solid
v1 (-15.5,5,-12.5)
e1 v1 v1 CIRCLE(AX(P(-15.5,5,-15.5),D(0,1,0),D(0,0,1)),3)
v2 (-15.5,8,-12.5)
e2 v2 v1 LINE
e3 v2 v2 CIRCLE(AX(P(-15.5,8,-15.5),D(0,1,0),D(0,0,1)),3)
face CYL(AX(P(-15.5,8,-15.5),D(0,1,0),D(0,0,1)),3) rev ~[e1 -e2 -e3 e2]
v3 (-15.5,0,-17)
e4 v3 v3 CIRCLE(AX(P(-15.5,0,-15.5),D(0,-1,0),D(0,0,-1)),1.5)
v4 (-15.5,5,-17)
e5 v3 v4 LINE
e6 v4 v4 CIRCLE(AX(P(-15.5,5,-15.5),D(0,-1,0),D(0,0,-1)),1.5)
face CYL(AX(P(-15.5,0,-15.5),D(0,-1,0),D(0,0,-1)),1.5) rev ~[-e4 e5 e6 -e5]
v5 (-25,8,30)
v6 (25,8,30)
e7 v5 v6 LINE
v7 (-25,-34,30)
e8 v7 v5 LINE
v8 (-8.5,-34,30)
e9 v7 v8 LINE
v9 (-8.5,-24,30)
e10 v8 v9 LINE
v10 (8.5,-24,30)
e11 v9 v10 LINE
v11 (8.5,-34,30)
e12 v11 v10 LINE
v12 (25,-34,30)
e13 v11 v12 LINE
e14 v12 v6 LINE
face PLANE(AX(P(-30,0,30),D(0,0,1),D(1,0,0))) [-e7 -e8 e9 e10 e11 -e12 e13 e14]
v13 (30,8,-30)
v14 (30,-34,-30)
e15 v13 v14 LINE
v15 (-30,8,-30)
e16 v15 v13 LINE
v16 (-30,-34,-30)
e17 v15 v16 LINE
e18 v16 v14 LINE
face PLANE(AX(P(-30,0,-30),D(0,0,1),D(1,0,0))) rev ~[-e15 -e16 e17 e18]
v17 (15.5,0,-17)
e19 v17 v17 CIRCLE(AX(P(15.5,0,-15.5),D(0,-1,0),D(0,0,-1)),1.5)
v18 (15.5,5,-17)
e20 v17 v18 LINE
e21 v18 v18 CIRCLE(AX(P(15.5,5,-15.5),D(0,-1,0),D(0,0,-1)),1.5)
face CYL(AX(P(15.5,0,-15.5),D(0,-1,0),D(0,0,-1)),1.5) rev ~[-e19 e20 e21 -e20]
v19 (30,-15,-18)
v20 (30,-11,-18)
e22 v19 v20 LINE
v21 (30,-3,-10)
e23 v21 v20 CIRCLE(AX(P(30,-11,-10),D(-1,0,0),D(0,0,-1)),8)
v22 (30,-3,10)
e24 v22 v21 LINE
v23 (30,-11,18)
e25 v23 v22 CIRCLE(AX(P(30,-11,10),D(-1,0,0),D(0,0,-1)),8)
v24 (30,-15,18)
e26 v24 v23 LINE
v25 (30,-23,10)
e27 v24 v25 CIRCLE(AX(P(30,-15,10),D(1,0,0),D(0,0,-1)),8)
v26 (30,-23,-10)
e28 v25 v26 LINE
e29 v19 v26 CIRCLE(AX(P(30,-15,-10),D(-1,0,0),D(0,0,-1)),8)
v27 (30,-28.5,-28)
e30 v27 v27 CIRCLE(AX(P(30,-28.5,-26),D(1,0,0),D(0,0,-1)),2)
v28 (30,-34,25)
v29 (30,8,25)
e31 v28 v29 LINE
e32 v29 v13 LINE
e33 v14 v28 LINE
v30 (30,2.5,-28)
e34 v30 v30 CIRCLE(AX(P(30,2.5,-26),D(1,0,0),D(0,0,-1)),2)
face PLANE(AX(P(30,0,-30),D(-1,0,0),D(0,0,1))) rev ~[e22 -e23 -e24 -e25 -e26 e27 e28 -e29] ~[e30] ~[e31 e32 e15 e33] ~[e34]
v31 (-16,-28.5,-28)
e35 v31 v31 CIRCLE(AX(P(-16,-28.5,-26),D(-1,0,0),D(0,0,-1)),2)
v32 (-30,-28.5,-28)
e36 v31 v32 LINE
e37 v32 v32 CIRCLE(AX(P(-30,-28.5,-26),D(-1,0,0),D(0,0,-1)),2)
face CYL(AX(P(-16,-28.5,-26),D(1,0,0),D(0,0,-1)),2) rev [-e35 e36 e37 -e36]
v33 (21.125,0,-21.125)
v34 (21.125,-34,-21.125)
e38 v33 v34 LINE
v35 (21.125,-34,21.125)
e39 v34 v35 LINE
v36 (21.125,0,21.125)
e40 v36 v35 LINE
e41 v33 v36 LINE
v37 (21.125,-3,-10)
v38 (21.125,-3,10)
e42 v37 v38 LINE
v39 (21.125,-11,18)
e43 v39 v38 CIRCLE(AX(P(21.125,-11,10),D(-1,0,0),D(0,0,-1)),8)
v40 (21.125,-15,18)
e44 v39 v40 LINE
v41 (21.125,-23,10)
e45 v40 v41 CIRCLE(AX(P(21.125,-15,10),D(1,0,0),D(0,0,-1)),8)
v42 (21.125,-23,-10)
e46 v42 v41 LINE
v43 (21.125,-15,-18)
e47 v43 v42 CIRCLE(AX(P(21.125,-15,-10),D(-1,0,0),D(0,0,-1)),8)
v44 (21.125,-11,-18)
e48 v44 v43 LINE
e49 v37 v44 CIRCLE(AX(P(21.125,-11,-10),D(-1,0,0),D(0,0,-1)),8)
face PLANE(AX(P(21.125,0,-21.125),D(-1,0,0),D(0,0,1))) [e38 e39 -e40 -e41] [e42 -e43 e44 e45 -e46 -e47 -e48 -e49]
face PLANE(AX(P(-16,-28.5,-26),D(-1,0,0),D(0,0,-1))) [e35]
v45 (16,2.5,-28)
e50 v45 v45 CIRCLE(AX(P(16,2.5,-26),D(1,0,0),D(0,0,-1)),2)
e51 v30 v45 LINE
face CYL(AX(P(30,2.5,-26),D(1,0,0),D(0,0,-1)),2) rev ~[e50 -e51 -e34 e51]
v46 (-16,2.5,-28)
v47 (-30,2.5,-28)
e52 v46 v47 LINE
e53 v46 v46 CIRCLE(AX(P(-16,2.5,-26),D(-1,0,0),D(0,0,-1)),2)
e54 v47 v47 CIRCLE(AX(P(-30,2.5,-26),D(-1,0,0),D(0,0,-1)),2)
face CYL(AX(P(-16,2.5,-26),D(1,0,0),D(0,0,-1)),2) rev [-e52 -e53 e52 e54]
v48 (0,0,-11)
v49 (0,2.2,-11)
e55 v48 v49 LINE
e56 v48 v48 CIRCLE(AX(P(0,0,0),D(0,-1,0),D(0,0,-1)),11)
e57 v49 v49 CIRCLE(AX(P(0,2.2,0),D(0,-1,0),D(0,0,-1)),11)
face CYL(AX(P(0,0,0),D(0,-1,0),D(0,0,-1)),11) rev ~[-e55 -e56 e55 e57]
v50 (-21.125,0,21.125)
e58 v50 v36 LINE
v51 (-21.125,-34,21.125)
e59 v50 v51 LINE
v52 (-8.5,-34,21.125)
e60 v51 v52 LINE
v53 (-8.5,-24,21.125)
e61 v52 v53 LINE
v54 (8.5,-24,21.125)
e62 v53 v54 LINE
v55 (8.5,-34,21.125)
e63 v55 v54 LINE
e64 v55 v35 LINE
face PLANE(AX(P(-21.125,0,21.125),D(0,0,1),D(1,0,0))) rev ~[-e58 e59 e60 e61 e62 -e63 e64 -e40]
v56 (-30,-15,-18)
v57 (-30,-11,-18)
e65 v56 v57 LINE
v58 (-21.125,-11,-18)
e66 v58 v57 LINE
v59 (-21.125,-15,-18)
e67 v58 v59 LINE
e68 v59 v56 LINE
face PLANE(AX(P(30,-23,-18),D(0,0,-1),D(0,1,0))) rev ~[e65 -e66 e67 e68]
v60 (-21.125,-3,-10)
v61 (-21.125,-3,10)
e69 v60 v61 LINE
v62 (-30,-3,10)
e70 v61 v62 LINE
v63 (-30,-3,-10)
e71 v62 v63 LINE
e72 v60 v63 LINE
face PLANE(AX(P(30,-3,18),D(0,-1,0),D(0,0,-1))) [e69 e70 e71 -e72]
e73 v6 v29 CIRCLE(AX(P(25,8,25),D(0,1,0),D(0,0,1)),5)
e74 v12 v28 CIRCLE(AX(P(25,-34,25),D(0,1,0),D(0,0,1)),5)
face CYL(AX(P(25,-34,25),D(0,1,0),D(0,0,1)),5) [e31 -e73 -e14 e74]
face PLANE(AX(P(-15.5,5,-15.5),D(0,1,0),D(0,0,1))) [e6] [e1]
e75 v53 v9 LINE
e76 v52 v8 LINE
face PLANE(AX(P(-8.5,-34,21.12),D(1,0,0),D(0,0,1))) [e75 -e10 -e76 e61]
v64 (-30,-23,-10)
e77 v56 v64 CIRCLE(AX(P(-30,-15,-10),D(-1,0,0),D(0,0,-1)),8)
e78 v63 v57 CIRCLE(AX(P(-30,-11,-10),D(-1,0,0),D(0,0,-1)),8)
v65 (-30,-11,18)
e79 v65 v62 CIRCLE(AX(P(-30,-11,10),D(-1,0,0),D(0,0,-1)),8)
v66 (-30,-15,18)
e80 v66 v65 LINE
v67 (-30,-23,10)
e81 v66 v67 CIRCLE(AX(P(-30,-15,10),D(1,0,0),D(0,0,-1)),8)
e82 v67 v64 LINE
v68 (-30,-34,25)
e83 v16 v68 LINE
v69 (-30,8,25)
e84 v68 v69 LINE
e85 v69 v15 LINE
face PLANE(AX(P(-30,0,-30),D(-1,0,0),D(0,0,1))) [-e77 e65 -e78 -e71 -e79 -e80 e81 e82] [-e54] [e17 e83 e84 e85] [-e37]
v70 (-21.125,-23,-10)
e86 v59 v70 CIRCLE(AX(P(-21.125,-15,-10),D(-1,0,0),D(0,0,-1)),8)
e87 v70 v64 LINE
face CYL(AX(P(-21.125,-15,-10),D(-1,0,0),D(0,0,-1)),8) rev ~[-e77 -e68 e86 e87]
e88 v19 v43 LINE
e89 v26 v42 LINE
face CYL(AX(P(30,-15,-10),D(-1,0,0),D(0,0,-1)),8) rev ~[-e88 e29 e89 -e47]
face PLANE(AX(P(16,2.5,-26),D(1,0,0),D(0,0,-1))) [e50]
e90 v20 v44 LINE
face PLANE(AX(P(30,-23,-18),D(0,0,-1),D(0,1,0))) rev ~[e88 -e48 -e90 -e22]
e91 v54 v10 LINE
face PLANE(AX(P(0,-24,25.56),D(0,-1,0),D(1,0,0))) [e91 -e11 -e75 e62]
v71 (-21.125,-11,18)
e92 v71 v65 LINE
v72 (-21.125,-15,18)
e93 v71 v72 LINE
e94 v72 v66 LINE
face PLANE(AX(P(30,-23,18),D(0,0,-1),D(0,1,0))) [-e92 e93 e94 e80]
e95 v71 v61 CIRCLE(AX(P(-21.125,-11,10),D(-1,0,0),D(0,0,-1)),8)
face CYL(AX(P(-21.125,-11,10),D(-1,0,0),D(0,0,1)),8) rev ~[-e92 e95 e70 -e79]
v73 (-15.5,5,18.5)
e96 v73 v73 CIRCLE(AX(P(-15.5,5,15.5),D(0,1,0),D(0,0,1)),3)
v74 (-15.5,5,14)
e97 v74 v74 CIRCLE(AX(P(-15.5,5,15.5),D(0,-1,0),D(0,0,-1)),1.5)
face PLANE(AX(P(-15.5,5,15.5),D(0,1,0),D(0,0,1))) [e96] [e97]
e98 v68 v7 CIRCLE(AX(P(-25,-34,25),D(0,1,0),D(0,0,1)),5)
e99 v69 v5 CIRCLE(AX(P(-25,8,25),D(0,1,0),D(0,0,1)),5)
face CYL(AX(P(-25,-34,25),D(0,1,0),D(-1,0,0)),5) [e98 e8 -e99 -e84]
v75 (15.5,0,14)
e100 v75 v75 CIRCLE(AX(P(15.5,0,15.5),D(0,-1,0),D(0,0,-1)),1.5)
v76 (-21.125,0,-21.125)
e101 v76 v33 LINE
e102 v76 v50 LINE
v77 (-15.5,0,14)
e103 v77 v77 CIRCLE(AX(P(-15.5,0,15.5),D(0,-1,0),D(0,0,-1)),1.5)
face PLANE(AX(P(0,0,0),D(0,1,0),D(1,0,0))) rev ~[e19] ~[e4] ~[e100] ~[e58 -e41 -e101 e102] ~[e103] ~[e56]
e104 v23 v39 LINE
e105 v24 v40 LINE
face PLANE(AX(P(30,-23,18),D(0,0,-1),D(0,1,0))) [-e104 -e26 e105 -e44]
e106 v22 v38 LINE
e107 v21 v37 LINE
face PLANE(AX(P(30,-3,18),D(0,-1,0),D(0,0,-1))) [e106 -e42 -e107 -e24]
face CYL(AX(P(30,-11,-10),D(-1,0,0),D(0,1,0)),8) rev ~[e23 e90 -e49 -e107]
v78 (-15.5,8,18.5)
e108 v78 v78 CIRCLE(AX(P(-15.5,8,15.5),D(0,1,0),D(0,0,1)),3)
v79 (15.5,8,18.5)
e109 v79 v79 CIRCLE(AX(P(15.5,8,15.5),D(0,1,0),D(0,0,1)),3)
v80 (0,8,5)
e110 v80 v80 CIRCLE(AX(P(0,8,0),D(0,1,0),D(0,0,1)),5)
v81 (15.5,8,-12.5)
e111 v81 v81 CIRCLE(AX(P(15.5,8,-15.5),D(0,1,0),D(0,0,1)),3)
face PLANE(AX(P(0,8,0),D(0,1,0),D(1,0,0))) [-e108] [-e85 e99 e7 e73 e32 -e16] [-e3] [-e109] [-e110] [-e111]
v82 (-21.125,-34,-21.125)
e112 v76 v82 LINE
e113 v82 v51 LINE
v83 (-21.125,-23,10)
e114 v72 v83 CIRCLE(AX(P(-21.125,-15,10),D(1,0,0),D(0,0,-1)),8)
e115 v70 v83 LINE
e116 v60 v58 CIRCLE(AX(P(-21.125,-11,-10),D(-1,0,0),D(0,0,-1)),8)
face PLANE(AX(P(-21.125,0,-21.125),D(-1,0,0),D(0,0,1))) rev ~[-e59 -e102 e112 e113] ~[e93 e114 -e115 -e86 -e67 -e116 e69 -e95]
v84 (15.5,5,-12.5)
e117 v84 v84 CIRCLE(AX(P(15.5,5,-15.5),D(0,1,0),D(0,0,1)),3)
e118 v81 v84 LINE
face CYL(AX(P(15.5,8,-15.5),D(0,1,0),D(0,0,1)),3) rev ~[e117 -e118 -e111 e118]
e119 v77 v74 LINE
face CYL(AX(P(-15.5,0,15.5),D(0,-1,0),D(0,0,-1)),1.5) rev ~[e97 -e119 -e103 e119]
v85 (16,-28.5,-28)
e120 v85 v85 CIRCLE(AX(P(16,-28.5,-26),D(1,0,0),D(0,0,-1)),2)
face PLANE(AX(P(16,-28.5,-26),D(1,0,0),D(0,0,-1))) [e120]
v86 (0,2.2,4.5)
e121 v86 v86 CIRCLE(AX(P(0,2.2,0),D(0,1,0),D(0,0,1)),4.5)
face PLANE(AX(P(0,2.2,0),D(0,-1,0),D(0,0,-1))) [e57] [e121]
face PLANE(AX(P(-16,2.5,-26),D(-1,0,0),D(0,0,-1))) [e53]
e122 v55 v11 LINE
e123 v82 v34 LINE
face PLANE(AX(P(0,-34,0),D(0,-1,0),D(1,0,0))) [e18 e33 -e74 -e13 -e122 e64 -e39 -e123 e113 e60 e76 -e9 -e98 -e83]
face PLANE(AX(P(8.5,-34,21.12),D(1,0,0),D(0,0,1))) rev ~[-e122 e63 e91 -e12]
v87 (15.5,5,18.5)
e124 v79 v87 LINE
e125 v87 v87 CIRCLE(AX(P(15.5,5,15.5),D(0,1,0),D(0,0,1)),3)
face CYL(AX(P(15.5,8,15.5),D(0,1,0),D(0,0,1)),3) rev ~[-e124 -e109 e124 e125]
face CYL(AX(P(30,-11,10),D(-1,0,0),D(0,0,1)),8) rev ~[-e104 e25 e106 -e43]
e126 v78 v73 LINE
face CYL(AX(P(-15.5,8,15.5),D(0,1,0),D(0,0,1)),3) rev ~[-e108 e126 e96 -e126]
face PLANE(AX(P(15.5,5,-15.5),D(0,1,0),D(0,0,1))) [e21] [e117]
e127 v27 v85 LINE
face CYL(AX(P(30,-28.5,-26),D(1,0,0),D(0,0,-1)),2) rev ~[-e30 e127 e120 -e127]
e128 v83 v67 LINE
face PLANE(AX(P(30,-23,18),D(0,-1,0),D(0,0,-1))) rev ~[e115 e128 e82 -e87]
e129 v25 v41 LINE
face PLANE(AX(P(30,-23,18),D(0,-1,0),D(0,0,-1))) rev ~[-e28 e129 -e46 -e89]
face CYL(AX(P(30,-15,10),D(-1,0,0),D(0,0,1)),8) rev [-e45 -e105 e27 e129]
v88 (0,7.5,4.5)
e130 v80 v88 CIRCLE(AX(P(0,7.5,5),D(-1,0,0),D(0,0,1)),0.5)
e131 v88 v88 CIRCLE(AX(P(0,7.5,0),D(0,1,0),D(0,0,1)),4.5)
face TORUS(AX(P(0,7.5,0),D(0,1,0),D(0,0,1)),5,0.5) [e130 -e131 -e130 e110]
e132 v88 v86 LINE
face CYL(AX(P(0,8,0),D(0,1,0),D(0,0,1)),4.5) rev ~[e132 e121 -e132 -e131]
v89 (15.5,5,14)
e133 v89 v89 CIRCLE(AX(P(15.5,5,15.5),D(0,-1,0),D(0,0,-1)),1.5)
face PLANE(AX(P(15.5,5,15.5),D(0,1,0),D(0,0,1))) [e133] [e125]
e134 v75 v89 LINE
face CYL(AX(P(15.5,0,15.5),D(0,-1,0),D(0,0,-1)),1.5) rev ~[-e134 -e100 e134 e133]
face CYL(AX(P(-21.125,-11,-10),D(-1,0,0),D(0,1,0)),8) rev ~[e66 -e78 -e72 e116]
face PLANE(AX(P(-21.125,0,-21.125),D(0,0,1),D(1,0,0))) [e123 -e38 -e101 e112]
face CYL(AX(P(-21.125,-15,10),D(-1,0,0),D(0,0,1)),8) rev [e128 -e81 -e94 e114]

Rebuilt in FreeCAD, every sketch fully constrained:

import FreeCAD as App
import Part
import Sketcher
from FreeCAD import Vector


def edges_at(feature, points):
    """Names of the edges that pass closest to the given points."""
    edges = feature.Shape.Edges
    near = lambda p: min(range(len(edges)), key=lambda i: edges[i].distToShape(Part.Vertex(*p))[0])
    return sorted({f"Edge{near(p) + 1}" for p in points})


def add_polygon(sketch, points):
    """Adds a closed chain of lines whose ends are joined by coincident constraints."""
    first, n = sketch.GeometryCount, len(points)
    for a, b in zip(points, points[1:] + points[:1]):
        sketch.addGeometry(Part.LineSegment(App.Vector(*a, 0), App.Vector(*b, 0)), False)
    for i in range(n):
        sketch.addConstraint(Sketcher.Constraint("Coincident", first + i, 2, first + (i + 1) % n, 1))

doc = App.newDocument("Part")
body = doc.addObject("PartDesign::Body", "Body")

sketch1 = body.newObject("Sketcher::SketchObject", "Sketch")
sketch1.AttachmentSupport = (doc.getObject("XZ_Plane"), [""])
sketch1.MapMode = "FlatFace"
add_polygon(sketch1, [(-30, -30), (-30, 30), (30, 30), (30, -30)])
sketch1.addConstraint(Sketcher.Constraint("Vertical", 0))
sketch1.addConstraint(Sketcher.Constraint("Horizontal", 1))
sketch1.addConstraint(Sketcher.Constraint("Vertical", 2))
sketch1.addConstraint(Sketcher.Constraint("Horizontal", 3))
sketch1.addConstraint(Sketcher.Constraint("Symmetric", 0, 2, 2, 2, -1, 1))
sketch1.addConstraint(Sketcher.Constraint("Equal", 3, 0))
sketch1.addConstraint(Sketcher.Constraint("DistanceX", 1, 1, 1, 2, 60.0))
pad1 = body.newObject("PartDesign::Pad", "Pad")
pad1.Profile = sketch1
pad1.Length = 8
pad1.Reversed = True

sketch2 = body.newObject("Sketcher::SketchObject", "Sketch001")
sketch2.AttachmentSupport = (doc.getObject("XZ_Plane"), [""])
sketch2.MapMode = "FlatFace"
sketch2.AttachmentOffset = App.Placement(Vector(0, 0, -8), App.Rotation())
sketch2.addGeometry(Part.Circle(Vector(0, 0, 0), Vector(0, 0, 1), 4.5), False)
sketch2.addConstraint(Sketcher.Constraint("Coincident", 0, 3, -1, 1))
sketch2.addConstraint(Sketcher.Constraint("Diameter", 0, 9.0))
pocket1 = body.newObject("PartDesign::Pocket", "Pocket")
pocket1.Profile = sketch2
pocket1.Length = 8
pocket1.Reversed = True

sketch3 = body.newObject("Sketcher::SketchObject", "Sketch002")
sketch3.AttachmentSupport = (doc.getObject("XZ_Plane"), [""])
sketch3.MapMode = "FlatFace"
sketch3.addGeometry(Part.Circle(Vector(0, 0, 0), Vector(0, 0, 1), 11), False)
sketch3.addConstraint(Sketcher.Constraint("Coincident", 0, 3, -1, 1))
sketch3.addConstraint(Sketcher.Constraint("Diameter", 0, 22.0))
pocket2 = body.newObject("PartDesign::Pocket", "Pocket001")
pocket2.Profile = sketch3
pocket2.Length = 2.2

sketch4 = body.newObject("Sketcher::SketchObject", "Sketch003")
sketch4.AttachmentSupport = (doc.getObject("XZ_Plane"), [""])
sketch4.MapMode = "FlatFace"
sketch4.addGeometry(Part.Circle(Vector(-15.5, 15.5, 0), Vector(0, 0, 1), 1.5), False)
sketch4.addGeometry(Part.Circle(Vector(-15.5, -15.5, 0), Vector(0, 0, 1), 1.5), False)
sketch4.addGeometry(Part.Circle(Vector(15.5, -15.5, 0), Vector(0, 0, 1), 1.5), False)
sketch4.addGeometry(Part.Circle(Vector(15.5, 15.5, 0), Vector(0, 0, 1), 1.5), False)
sketch4.addConstraint(Sketcher.Constraint("Equal", 0, 1))
sketch4.addConstraint(Sketcher.Constraint("Equal", 1, 2))
sketch4.addConstraint(Sketcher.Constraint("Equal", 2, 3))
sketch4.addConstraint(Sketcher.Constraint("Symmetric", 0, 3, 2, 3, -1, 1))
sketch4.addConstraint(Sketcher.Constraint("Symmetric", 1, 3, 3, 3, -1, 1))
sketch4.addConstraint(Sketcher.Constraint("Symmetric", 1, 3, 2, 3, -2))
sketch4.addConstraint(Sketcher.Constraint("Diameter", 0, 3.0))
sketch4.addConstraint(Sketcher.Constraint("DistanceY", 1, 3, 0, 3, 31.0))
sketch4.addConstraint(Sketcher.Constraint("DistanceX", 1, 3, 2, 3, 31.0))
pocket3 = body.newObject("PartDesign::Pocket", "Pocket002")
pocket3.Profile = sketch4
pocket3.Length = 11.2

sketch5 = body.newObject("Sketcher::SketchObject", "Sketch004")
sketch5.AttachmentSupport = (doc.getObject("XZ_Plane"), [""])
sketch5.MapMode = "FlatFace"
sketch5.AttachmentOffset = App.Placement(Vector(0, 0, -8), App.Rotation())
sketch5.addGeometry(Part.Circle(Vector(-15.5, -15.5, 0), Vector(0, 0, 1), 3), False)
sketch5.addGeometry(Part.Circle(Vector(15.5, -15.5, 0), Vector(0, 0, 1), 3), False)
sketch5.addGeometry(Part.Circle(Vector(-15.5, 15.5, 0), Vector(0, 0, 1), 3), False)
sketch5.addGeometry(Part.Circle(Vector(15.5, 15.5, 0), Vector(0, 0, 1), 3), False)
sketch5.addConstraint(Sketcher.Constraint("Equal", 0, 1))
sketch5.addConstraint(Sketcher.Constraint("Equal", 1, 2))
sketch5.addConstraint(Sketcher.Constraint("Equal", 2, 3))
sketch5.addConstraint(Sketcher.Constraint("Symmetric", 1, 3, 2, 3, -1, 1))
sketch5.addConstraint(Sketcher.Constraint("Symmetric", 0, 3, 3, 3, -1, 1))
sketch5.addConstraint(Sketcher.Constraint("Symmetric", 0, 3, 1, 3, -2))
sketch5.addConstraint(Sketcher.Constraint("Diameter", 0, 6.0))
sketch5.addConstraint(Sketcher.Constraint("DistanceX", 0, 3, 1, 3, 31.0))
sketch5.addConstraint(Sketcher.Constraint("DistanceY", 0, 3, 2, 3, 31.0))
pocket4 = body.newObject("PartDesign::Pocket", "Pocket003")
pocket4.Profile = sketch5
pocket4.Length = 3
pocket4.Reversed = True

sketch6 = body.newObject("Sketcher::SketchObject", "Sketch005")
sketch6.AttachmentSupport = (doc.getObject("XZ_Plane"), [""])
sketch6.MapMode = "FlatFace"
add_polygon(sketch6, [(-30, 30), (-30, -30), (30, -30), (30, 30)])
add_polygon(sketch6, [(21, -21), (-21, -21), (-21, 21), (21, 21)])
sketch6.addConstraint(Sketcher.Constraint("Vertical", 0))
sketch6.addConstraint(Sketcher.Constraint("Horizontal", 1))
sketch6.addConstraint(Sketcher.Constraint("Vertical", 2))
sketch6.addConstraint(Sketcher.Constraint("Horizontal", 3))
sketch6.addConstraint(Sketcher.Constraint("Horizontal", 4))
sketch6.addConstraint(Sketcher.Constraint("Vertical", 5))
sketch6.addConstraint(Sketcher.Constraint("Horizontal", 6))
sketch6.addConstraint(Sketcher.Constraint("Vertical", 7))
sketch6.addConstraint(Sketcher.Constraint("Symmetric", 0, 2, 2, 2, -1, 1))
sketch6.addConstraint(Sketcher.Constraint("Symmetric", 4, 2, 6, 2, -1, 1))
sketch6.addConstraint(Sketcher.Constraint("Equal", 3, 0))
sketch6.addConstraint(Sketcher.Constraint("Equal", 6, 5))
sketch6.addConstraint(Sketcher.Constraint("DistanceX", 1, 1, 1, 2, 60.0))
sketch6.addConstraint(Sketcher.Constraint("DistanceX", 4, 2, 4, 1, 42.25))
pad2 = body.newObject("PartDesign::Pad", "Pad001")
pad2.Profile = sketch6
pad2.Length = 34

sketch7 = body.newObject("Sketcher::SketchObject", "Sketch006")
sketch7.AttachmentSupport = (doc.getObject("XZ_Plane"), [""])
sketch7.MapMode = "FlatFace"
sketch7.AttachmentOffset = App.Placement(Vector(0, 0, 34), App.Rotation())
add_polygon(sketch7, [(-8, 30), (-8, 21), (8, 21), (8, 30)])
sketch7.addConstraint(Sketcher.Constraint("Vertical", 0))
sketch7.addConstraint(Sketcher.Constraint("Horizontal", 1))
sketch7.addConstraint(Sketcher.Constraint("Vertical", 2))
sketch7.addConstraint(Sketcher.Constraint("Horizontal", 3))
sketch7.addConstraint(Sketcher.Constraint("DistanceX", 1, 1, 1, 2, 17.0))
sketch7.addConstraint(Sketcher.Constraint("DistanceY", -1, 1, 2, 2, 30.0))
sketch7.addConstraint(Sketcher.Constraint("DistanceY", 0, 2, 0, 1, 8.88))
sketch7.addConstraint(Sketcher.Constraint("DistanceX", 0, 2, -1, 1, 8.5))
pocket5 = body.newObject("PartDesign::Pocket", "Pocket004")
pocket5.Profile = sketch7
pocket5.Length = 10

sketch8 = body.newObject("Sketcher::SketchObject", "Sketch007")
sketch8.AttachmentSupport = (doc.getObject("YZ_Plane"), [""])
sketch8.MapMode = "FlatFace"
sketch8.AttachmentOffset = App.Placement(Vector(0, 0, 30), App.Rotation())
add_polygon(sketch8, [(-3, 18), (-23, 18), (-23, -18), (-3, -18)])
sketch8.addConstraint(Sketcher.Constraint("Horizontal", 0))
sketch8.addConstraint(Sketcher.Constraint("Vertical", 1))
sketch8.addConstraint(Sketcher.Constraint("Horizontal", 2))
sketch8.addConstraint(Sketcher.Constraint("Vertical", 3))
sketch8.addConstraint(Sketcher.Constraint("DistanceX", 0, 2, 0, 1, 20.0))
sketch8.addConstraint(Sketcher.Constraint("DistanceY", 1, 2, 1, 1, 36.0))
sketch8.addConstraint(Sketcher.Constraint("DistanceX", 0, 2, -1, 1, 23.0))
sketch8.addConstraint(Sketcher.Constraint("DistanceY", -1, 1, 0, 2, 18.0))
pocket6 = body.newObject("PartDesign::Pocket", "Pocket005")
pocket6.Profile = sketch8
pocket6.Length = 60
doc.recompute()

fillet = body.newObject("PartDesign::Fillet", "Fillet")
fillet.Base = (pocket6, edges_at(pocket6, [(0, 8, -4.5)]))
fillet.Radius = 0.5
doc.recompute()

fillet2 = body.newObject("PartDesign::Fillet", "Fillet001")
fillet2.Base = (fillet, edges_at(fillet, [
    (-25.562, -23, 18),
    (-25.562, -3, 18),
    (-25.562, -3, -18),
    (-25.562, -23, -18),
    (25.562, -23, 18),
    (25.562, -3, 18),
    (25.562, -3, -18),
    (25.562, -23, -18),
]))
fillet2.Radius = 8
doc.recompute()

fillet3 = body.newObject("PartDesign::Fillet", "Fillet002")
fillet3.Base = (fillet2, edges_at(fillet2, [(30, -13, 30), (-30, -13, 30)]))
fillet3.Radius = 5

sketch9 = body.newObject("Sketcher::SketchObject", "Sketch008")
sketch9.AttachmentSupport = (doc.getObject("YZ_Plane"), [""])
sketch9.MapMode = "FlatFace"
sketch9.AttachmentOffset = App.Placement(Vector(0, 0, 30), App.Rotation())
sketch9.addGeometry(Part.Circle(Vector(-28.5, -26, 0), Vector(0, 0, 1), 2), False)
sketch9.addGeometry(Part.Circle(Vector(2.5, -26, 0), Vector(0, 0, 1), 2), False)
sketch9.addConstraint(Sketcher.Constraint("Equal", 0, 1))
sketch9.addConstraint(Sketcher.Constraint("Horizontal", 0, 3, 1, 3))
sketch9.addConstraint(Sketcher.Constraint("Diameter", 0, 4.0))
sketch9.addConstraint(Sketcher.Constraint("DistanceY", 0, 3, -1, 1, 26.0))
sketch9.addConstraint(Sketcher.Constraint("DistanceX", 0, 3, 1, 3, 31.0))
sketch9.addConstraint(Sketcher.Constraint("DistanceX", 0, 3, -1, 1, 28.5))
pocket7 = body.newObject("PartDesign::Pocket", "Pocket006")
pocket7.Profile = sketch9
pocket7.Length = 14

sketch10 = body.newObject("Sketcher::SketchObject", "Sketch009")
sketch10.AttachmentSupport = (doc.getObject("YZ_Plane"), [""])
sketch10.MapMode = "FlatFace"
sketch10.AttachmentOffset = App.Placement(Vector(0, 0, -16), App.Rotation())
sketch10.addGeometry(Part.Circle(Vector(2.5, -26, 0), Vector(0, 0, 1), 2), False)
sketch10.addGeometry(Part.Circle(Vector(-28.5, -26, 0), Vector(0, 0, 1), 2), False)
sketch10.addConstraint(Sketcher.Constraint("Equal", 0, 1))
sketch10.addConstraint(Sketcher.Constraint("Horizontal", 0, 3, 1, 3))
sketch10.addConstraint(Sketcher.Constraint("Diameter", 0, 4.0))
sketch10.addConstraint(Sketcher.Constraint("DistanceY", 0, 3, -1, 1, 26.0))
sketch10.addConstraint(Sketcher.Constraint("DistanceX", 1, 3, 0, 3, 31.0))
sketch10.addConstraint(Sketcher.Constraint("DistanceX", -1, 1, 0, 3, 2.5))
pocket8 = body.newObject("PartDesign::Pocket", "Pocket007")
pocket8.Profile = sketch10
pocket8.Length = 14

doc.recompute()
